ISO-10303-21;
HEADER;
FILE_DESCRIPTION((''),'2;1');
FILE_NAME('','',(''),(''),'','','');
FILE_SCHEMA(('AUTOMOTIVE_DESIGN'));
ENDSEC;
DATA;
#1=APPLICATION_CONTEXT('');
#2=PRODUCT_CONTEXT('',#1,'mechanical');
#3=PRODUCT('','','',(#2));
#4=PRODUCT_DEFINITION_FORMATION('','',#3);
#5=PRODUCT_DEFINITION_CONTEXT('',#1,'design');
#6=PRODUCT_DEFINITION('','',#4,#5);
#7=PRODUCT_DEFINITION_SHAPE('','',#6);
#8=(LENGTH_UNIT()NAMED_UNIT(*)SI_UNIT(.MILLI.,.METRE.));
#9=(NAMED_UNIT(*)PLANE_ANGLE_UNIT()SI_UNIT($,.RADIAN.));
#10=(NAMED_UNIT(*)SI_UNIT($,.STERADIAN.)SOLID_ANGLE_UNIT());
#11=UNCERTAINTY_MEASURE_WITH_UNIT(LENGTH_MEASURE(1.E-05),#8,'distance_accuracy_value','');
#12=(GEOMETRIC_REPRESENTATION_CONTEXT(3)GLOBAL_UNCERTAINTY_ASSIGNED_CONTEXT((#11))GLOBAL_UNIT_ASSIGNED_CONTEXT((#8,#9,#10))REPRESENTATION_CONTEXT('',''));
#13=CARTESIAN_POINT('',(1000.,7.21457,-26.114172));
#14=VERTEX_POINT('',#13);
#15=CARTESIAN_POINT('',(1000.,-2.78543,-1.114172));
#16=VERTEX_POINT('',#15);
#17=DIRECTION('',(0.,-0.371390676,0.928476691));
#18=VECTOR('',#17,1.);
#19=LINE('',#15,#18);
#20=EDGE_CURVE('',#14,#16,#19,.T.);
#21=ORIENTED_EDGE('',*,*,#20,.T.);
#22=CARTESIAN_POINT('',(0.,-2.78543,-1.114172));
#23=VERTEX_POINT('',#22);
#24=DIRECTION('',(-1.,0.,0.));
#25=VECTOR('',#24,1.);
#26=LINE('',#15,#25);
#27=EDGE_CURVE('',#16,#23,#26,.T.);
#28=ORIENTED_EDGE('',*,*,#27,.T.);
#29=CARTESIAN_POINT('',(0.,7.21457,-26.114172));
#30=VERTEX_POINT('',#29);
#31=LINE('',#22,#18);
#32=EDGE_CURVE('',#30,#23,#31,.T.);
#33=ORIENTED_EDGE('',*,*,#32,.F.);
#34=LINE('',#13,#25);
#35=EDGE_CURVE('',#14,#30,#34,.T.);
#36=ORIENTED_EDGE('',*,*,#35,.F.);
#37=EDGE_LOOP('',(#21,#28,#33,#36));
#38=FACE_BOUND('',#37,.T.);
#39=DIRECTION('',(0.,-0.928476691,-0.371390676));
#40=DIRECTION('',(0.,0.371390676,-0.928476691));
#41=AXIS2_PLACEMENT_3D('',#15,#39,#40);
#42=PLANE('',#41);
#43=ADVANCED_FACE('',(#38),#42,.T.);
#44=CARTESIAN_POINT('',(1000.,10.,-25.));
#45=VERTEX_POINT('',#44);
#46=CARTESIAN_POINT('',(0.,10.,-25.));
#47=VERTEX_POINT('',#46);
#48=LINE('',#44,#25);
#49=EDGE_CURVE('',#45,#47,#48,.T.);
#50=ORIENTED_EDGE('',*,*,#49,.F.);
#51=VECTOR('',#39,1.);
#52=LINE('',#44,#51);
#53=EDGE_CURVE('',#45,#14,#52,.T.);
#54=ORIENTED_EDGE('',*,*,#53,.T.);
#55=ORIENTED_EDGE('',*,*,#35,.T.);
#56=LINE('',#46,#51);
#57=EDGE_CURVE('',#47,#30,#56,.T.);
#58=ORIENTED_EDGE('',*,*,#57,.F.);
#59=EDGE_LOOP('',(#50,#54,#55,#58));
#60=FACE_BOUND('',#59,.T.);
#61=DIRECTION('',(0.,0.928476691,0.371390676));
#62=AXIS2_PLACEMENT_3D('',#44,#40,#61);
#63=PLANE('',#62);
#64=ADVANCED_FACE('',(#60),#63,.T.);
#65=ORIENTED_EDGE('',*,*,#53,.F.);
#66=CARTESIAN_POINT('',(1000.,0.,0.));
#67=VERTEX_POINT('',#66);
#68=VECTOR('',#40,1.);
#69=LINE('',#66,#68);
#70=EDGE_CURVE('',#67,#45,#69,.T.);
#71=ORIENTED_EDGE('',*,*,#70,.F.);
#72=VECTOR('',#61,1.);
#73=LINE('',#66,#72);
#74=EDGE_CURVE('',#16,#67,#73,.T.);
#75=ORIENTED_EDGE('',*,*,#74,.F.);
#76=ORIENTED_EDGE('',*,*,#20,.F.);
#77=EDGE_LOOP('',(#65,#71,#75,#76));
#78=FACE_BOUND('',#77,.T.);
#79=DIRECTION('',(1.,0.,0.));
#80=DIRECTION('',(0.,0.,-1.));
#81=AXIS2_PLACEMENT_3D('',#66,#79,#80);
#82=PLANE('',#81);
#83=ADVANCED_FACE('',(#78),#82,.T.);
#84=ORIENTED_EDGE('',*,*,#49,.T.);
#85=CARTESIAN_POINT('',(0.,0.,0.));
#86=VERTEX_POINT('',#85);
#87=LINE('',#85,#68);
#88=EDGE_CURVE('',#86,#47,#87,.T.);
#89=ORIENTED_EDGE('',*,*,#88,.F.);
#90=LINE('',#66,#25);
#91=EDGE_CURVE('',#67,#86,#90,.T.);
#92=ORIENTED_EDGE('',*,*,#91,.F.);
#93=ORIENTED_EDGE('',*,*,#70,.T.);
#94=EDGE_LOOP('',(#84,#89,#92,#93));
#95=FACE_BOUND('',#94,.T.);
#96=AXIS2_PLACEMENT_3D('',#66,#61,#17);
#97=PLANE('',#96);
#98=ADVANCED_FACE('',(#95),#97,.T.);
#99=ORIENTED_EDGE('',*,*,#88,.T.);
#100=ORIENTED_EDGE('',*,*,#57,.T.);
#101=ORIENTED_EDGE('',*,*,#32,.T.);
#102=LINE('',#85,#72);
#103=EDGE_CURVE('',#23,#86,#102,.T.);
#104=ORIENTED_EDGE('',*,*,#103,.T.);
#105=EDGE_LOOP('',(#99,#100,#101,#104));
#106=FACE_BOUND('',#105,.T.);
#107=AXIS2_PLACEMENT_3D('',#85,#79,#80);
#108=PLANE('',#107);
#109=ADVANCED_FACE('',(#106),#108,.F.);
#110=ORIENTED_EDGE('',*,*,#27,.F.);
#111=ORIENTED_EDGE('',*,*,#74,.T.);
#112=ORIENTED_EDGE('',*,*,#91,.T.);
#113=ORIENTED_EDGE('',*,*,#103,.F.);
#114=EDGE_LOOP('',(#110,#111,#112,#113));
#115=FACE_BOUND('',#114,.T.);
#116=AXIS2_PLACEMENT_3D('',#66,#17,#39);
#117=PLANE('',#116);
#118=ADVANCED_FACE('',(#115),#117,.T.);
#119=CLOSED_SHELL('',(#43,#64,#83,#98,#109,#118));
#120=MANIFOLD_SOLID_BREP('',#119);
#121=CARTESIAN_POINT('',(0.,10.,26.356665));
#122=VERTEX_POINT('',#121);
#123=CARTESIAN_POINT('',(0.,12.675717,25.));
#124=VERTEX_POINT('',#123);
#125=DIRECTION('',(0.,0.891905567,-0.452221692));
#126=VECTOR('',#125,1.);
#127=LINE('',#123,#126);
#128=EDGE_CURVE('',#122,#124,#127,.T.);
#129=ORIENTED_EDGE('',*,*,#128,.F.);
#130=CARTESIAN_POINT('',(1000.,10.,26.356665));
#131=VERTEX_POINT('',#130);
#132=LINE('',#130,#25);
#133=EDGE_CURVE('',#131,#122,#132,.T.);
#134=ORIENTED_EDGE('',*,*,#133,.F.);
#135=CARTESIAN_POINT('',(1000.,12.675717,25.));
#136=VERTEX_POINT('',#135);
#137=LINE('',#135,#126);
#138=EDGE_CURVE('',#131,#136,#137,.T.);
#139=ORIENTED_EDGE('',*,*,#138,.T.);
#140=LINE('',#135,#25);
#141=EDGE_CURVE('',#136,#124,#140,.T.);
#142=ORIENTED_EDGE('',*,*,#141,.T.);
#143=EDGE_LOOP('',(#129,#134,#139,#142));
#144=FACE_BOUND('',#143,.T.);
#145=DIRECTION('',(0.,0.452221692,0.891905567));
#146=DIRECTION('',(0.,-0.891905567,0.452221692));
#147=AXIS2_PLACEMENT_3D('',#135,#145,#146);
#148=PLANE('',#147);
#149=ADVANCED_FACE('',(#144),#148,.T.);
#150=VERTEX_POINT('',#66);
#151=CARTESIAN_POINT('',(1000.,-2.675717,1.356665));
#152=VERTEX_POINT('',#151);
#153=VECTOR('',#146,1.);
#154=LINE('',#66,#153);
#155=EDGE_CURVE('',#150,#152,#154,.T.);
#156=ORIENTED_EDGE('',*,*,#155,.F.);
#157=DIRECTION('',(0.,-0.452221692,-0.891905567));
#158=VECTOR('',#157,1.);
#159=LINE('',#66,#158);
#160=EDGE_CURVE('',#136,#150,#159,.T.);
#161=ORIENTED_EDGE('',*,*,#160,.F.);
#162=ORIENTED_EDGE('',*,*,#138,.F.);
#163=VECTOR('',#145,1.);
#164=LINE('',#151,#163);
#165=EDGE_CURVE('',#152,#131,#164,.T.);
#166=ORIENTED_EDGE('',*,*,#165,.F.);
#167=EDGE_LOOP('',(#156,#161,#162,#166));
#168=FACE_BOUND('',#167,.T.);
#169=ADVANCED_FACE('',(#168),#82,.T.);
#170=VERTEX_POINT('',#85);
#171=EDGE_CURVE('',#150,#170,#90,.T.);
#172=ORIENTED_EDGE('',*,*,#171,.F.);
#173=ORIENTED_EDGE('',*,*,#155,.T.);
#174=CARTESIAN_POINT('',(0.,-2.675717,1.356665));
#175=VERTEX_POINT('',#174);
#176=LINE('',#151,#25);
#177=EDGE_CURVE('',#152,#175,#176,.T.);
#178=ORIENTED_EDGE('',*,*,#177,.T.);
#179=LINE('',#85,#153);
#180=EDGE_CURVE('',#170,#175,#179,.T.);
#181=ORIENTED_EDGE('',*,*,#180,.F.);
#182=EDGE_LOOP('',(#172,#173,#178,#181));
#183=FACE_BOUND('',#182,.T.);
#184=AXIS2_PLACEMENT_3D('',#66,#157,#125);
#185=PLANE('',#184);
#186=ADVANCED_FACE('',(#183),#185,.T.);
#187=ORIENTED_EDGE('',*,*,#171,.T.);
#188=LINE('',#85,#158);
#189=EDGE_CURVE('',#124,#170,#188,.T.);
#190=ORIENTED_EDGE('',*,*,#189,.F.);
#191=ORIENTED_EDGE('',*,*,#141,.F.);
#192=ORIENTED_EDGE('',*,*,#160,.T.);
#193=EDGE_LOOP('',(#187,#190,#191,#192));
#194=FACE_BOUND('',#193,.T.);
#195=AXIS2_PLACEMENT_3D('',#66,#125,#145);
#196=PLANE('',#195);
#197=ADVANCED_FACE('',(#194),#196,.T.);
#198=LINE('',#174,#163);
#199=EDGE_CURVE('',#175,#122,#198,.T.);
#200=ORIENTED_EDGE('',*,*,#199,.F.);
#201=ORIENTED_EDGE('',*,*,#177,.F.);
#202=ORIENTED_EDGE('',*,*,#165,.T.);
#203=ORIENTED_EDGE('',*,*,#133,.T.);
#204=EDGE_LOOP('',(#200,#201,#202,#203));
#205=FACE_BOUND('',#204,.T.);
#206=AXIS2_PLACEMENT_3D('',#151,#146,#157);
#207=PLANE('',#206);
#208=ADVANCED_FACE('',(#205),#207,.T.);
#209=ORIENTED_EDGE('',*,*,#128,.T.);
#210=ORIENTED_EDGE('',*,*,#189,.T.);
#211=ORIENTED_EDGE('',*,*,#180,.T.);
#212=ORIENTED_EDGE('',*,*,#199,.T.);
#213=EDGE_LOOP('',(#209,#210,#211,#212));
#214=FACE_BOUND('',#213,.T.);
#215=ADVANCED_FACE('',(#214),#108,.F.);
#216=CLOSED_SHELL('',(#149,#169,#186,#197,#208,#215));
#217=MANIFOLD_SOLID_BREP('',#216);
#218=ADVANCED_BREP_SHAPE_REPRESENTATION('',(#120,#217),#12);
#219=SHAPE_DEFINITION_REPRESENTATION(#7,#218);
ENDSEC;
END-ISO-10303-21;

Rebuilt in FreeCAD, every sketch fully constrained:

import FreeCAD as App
import Part
import Sketcher
Q = App.Units.Quantity


def add_polygon(sketch, points):
    """Adds a closed chain of lines whose ends are joined by coincident constraints."""
    first, n = sketch.GeometryCount, len(points)
    for a, b in zip(points, points[1:] + points[:1]):
        sketch.addGeometry(Part.LineSegment(App.Vector(*a, 0), App.Vector(*b, 0)), False)
    for i in range(n):
        sketch.addConstraint(Sketcher.Constraint("Coincident", first + i, 2, first + (i + 1) % n, 1))

doc = App.newDocument("Part")
body = doc.addObject("PartDesign::Body", "Body")

# Sketch on YZ plane
sketch1 = body.newObject("Sketcher::SketchObject", "Sketch")
sketch1.AttachmentSupport = (doc.getObject("YZ_Plane"), [""])
sketch1.MapMode = "FlatFace"
add_polygon(sketch1, [(10, 26.4), (-2.7, 1.4), (0, 0), (12.7, 25)])  # lines 0-3
sketch1.addConstraint([
    Sketcher.Constraint("Coincident", 1, 2, -1, 1),
    Sketcher.Constraint("Perpendicular", 0, 1),
    Sketcher.Constraint("Perpendicular", 1, 2),
    Sketcher.Constraint("Perpendicular", 2, 3),
    Sketcher.Constraint("Distance", 1, Q("3 mm")),
    Sketcher.Constraint("DistanceY", -1, 1, 2, 2, Q("25 mm")),
    Sketcher.Constraint("DistanceX", -1, 1, 3, 2, Q("10 mm")),
])
pad1 = body.newObject("PartDesign::Pad", "Pad")
pad1.Profile = sketch1
pad1.Length = 1000
body2 = doc.addObject("PartDesign::Body", "Body001")

# Sketch on YZ plane
sketch2 = body2.newObject("Sketcher::SketchObject", "Sketch001")
sketch2.AttachmentSupport = (doc.getObject("YZ_Plane001"), [""])
sketch2.MapMode = "FlatFace"
add_polygon(sketch2, [(7.2, -26.1), (10, -25), (0, 0), (-2.8, -1.1)])  # lines 0-3
sketch2.addConstraint([
    Sketcher.Constraint("Coincident", 1, 2, -1, 1),
    Sketcher.Constraint("Perpendicular", 0, 1),
    Sketcher.Constraint("Perpendicular", 1, 2),
    Sketcher.Constraint("Perpendicular", 2, 3),
    Sketcher.Constraint("Distance", 0, Q("3 mm")),
    Sketcher.Constraint("DistanceX", -1, 1, 0, 2, Q("10 mm")),
    Sketcher.Constraint("DistanceY", 0, 2, -1, 1, Q("25 mm")),
])
pad2 = body2.newObject("PartDesign::Pad", "Pad001")
pad2.Profile = sketch2
pad2.Length = 1000

doc.recompute()
